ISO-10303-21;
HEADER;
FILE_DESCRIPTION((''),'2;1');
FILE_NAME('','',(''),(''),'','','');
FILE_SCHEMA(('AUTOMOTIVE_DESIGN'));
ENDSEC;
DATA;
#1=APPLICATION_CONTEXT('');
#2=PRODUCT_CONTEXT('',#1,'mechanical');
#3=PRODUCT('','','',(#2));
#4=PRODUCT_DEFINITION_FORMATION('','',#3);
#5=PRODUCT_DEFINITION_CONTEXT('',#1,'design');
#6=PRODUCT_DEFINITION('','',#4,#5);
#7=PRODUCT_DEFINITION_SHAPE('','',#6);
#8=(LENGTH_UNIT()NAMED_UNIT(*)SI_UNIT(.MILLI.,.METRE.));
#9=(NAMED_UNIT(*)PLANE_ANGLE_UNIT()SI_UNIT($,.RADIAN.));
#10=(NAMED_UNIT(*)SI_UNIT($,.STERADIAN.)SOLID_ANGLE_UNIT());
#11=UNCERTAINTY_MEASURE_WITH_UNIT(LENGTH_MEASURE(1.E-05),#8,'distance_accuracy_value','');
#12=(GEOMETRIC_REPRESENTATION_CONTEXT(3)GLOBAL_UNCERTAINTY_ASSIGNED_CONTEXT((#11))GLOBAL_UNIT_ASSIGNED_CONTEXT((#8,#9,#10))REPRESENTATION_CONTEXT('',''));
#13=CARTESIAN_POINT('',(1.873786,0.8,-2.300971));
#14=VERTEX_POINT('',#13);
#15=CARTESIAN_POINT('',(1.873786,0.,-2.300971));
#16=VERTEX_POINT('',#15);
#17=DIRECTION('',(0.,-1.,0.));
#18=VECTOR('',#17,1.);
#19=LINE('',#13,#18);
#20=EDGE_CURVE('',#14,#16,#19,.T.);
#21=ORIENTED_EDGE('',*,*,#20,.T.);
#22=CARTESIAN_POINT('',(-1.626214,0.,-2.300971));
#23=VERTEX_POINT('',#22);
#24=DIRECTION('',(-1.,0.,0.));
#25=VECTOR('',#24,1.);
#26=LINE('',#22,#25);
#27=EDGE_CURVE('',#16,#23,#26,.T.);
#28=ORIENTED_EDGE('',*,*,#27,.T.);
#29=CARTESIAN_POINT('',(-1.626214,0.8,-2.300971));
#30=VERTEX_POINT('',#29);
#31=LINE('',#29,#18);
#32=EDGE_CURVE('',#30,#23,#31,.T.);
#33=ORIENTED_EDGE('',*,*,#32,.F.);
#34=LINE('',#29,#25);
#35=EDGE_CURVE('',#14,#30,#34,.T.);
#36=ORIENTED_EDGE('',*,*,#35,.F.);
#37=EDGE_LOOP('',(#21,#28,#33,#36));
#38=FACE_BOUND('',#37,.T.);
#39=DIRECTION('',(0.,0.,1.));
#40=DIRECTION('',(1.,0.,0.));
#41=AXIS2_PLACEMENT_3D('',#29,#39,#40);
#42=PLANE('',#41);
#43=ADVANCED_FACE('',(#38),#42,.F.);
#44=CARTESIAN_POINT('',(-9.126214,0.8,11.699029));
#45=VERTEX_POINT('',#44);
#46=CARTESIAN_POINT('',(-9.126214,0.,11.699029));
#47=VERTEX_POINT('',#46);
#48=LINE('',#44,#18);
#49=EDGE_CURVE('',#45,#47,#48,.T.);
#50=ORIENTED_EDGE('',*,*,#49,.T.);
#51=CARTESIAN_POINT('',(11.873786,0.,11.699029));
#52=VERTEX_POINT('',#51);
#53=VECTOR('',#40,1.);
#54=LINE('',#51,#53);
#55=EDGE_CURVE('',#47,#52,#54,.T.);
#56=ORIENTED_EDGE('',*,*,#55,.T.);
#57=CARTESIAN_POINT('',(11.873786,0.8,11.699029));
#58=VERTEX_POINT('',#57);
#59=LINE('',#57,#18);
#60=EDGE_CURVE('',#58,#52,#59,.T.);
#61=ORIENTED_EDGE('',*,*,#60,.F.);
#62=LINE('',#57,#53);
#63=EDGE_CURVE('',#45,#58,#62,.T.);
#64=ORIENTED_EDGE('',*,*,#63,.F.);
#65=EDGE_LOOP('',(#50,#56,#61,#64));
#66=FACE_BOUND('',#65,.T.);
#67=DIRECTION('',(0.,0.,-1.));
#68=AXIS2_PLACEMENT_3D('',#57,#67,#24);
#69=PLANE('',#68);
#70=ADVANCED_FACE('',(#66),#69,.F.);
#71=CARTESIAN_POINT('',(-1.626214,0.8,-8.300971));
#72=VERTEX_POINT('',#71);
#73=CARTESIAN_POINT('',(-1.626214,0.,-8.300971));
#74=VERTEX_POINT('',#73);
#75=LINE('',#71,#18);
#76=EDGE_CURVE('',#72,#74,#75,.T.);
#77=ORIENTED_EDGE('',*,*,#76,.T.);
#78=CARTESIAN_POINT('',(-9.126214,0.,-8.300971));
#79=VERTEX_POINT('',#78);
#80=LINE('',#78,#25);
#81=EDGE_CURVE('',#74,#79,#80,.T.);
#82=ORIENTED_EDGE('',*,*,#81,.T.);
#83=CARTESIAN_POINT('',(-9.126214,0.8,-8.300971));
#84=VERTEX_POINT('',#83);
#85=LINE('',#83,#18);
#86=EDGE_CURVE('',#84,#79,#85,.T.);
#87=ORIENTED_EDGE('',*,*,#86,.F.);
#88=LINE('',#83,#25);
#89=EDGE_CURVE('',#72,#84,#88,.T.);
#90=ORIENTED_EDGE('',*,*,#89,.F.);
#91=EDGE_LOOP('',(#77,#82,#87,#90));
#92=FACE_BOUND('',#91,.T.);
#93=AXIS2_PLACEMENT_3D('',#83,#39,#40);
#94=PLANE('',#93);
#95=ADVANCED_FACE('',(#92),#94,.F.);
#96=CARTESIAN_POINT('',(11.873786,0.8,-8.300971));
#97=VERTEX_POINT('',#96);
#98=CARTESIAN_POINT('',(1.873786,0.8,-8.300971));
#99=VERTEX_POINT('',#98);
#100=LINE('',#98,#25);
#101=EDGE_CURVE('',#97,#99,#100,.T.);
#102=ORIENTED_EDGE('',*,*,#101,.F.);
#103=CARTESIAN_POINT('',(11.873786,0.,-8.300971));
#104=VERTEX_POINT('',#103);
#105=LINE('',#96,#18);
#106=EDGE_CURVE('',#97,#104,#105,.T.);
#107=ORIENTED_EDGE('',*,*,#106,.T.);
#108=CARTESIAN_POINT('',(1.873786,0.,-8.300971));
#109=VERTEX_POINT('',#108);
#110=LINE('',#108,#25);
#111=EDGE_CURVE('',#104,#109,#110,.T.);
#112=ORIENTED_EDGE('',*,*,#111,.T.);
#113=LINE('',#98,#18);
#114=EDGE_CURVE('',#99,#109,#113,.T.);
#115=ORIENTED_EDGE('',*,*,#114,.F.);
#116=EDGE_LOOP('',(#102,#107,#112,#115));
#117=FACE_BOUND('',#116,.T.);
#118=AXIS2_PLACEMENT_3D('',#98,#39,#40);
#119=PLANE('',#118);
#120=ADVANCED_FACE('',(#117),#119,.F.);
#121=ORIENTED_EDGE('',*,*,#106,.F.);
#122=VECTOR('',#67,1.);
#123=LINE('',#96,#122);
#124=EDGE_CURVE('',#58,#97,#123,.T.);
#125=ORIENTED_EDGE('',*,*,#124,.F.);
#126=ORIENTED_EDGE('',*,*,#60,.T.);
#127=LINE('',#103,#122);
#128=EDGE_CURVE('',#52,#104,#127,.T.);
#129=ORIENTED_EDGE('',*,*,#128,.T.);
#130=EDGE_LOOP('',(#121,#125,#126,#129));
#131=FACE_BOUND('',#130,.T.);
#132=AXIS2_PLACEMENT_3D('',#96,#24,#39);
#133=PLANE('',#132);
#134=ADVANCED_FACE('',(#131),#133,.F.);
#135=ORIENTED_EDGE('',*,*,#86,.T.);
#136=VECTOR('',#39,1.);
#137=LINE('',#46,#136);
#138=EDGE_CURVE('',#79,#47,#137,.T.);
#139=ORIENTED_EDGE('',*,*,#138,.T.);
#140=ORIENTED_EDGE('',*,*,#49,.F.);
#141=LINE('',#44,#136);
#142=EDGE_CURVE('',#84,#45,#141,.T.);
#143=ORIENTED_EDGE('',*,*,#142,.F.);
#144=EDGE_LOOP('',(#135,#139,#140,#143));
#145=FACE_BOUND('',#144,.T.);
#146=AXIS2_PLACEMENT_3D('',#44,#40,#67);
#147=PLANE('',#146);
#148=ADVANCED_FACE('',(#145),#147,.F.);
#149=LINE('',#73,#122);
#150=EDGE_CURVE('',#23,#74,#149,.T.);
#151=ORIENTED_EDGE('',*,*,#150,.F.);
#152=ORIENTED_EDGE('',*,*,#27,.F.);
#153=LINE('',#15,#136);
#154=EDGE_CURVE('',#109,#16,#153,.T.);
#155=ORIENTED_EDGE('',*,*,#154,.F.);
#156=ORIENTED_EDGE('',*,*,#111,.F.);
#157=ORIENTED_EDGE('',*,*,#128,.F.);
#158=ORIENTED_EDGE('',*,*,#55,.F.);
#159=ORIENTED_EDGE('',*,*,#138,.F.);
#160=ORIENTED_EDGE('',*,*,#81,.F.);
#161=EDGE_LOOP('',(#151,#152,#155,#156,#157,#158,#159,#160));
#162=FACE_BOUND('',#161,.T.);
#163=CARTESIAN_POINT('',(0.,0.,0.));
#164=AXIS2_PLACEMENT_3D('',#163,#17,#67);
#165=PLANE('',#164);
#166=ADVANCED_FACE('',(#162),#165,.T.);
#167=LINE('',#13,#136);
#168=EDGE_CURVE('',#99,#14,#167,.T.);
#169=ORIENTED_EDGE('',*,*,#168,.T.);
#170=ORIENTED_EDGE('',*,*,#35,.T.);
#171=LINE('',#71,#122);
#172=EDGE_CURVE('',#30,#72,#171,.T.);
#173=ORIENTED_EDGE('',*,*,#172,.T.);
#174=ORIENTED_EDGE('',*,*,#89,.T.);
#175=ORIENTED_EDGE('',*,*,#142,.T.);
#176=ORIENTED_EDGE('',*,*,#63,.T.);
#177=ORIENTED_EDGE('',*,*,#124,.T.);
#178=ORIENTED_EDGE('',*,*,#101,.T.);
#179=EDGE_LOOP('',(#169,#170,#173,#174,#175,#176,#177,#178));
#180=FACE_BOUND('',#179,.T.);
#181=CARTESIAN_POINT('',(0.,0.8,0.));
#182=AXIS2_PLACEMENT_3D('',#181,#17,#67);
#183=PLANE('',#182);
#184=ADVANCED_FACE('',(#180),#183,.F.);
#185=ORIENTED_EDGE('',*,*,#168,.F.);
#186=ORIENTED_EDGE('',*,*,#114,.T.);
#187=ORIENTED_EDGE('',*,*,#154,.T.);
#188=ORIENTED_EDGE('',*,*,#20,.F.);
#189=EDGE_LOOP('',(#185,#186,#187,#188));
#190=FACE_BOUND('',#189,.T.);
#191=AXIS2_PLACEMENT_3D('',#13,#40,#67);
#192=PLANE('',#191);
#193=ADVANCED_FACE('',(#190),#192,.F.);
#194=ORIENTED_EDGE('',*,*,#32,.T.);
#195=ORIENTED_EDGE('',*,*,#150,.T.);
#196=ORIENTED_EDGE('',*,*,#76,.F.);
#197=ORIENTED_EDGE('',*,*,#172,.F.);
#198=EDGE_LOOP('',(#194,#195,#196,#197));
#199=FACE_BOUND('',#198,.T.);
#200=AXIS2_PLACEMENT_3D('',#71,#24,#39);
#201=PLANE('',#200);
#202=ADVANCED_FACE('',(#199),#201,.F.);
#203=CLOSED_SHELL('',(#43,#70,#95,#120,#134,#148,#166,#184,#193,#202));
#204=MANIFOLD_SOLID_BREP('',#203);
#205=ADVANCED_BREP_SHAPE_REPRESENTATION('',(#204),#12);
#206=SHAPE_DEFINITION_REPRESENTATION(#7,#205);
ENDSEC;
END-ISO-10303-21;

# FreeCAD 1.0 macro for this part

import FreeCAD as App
import Part
import Sketcher

V = App.Vector

doc = App.newDocument("Part")
body = doc.addObject("PartDesign::Body", "Body")

# Sketch on XZ plane
sketch1 = body.newObject("Sketcher::SketchObject", "Sketch")
sketch1.AttachmentSupport = (doc.getObject("XZ_Plane"), [""])
sketch1.MapMode = "FlatFace"
sketch1.addGeometry([
    Part.LineSegment(V(-1.6, -8.3, 0), V(-9.1, -8.3, 0)),  # 0
    Part.LineSegment(V(-9.1, -8.3, 0), V(-9.1, 11.7, 0)),  # 1
    Part.LineSegment(V(-9.1, 11.7, 0), V(11.9, 11.7, 0)),  # 2
    Part.LineSegment(V(11.9, 11.7, 0), V(11.9, -8.3, 0)),  # 3
    Part.LineSegment(V(11.9, -8.3, 0), V(1.9, -8.3, 0)),  # 4
    Part.LineSegment(V(1.9, -8.3, 0), V(1.9, -2.3, 0)),  # 5
    Part.LineSegment(V(1.9, -2.3, 0), V(-1.6, -2.3, 0)),  # 6
    Part.LineSegment(V(-1.6, -2.3, 0), V(-1.6, -8.3, 0)),  # 7
], False)
sketch1.addConstraint([
    Sketcher.Constraint("Coincident", 0, 2, 1, 1),
    Sketcher.Constraint("Coincident", 1, 2, 2, 1),
    Sketcher.Constraint("Coincident", 2, 2, 3, 1),
    Sketcher.Constraint("Coincident", 3, 2, 4, 1),
    Sketcher.Constraint("Coincident", 4, 2, 5, 1),
    Sketcher.Constraint("Coincident", 5, 2, 6, 1),
    Sketcher.Constraint("Coincident", 6, 2, 7, 1),
    Sketcher.Constraint("Coincident", 7, 2, 0, 1),
    Sketcher.Constraint("Horizontal", 0),
    Sketcher.Constraint("Vertical", 1),
    Sketcher.Constraint("Horizontal", 2),
    Sketcher.Constraint("Vertical", 3),
    Sketcher.Constraint("Horizontal", 4),
    Sketcher.Constraint("Vertical", 5),
    Sketcher.Constraint("Horizontal", 6),
    Sketcher.Constraint("Vertical", 7),
    Sketcher.Constraint("Horizontal", 0, 2, 3, 2),
    Sketcher.Constraint("DistanceX", 2, 1, 2, 2, 21.0),
    Sketcher.Constraint("DistanceX", 4, 2, 4, 1, 10.0),
    Sketcher.Constraint("DistanceY", 1, 1, 1, 2, 20.0),
    Sketcher.Constraint("DistanceY", 5, 1, 5, 2, 6.0),
    Sketcher.Constraint("DistanceX", 0, 2, 0, 1, 7.5),
    Sketcher.Constraint("DistanceY", 0, 2, -1, 1, 8.300971),
    Sketcher.Constraint("DistanceX", 0, 2, -1, 1, 9.126214),
])
pad1 = body.newObject("PartDesign::Pad", "Pad")
pad1.Profile = sketch1
pad1.Length = 0.8
pad1.Reversed = True

doc.recompute()
